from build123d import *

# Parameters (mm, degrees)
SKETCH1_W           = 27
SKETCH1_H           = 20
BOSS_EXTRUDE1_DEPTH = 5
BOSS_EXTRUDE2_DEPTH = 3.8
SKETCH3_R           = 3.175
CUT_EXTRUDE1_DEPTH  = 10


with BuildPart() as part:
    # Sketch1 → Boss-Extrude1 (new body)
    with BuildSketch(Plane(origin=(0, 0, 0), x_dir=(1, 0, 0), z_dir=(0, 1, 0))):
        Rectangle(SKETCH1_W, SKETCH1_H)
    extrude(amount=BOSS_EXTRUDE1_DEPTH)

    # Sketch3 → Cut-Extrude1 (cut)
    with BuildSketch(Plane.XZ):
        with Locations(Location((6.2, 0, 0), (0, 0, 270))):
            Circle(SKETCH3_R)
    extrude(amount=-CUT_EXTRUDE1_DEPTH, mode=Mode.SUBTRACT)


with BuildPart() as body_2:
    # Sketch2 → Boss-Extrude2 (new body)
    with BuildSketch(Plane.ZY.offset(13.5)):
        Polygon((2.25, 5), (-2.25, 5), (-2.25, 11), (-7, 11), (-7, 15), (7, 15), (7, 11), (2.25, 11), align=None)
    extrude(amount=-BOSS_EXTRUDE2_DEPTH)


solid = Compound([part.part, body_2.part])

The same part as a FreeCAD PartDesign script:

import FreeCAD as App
import Part
import Sketcher
from FreeCAD import Vector


def add_polygon(sketch, points):
    """Adds a closed chain of lines whose ends are joined by coincident constraints."""
    first, n = sketch.GeometryCount, len(points)
    for a, b in zip(points, points[1:] + points[:1]):
        sketch.addGeometry(Part.LineSegment(App.Vector(*a, 0), App.Vector(*b, 0)), False)
    for i in range(n):
        sketch.addConstraint(Sketcher.Constraint("Coincident", first + i, 2, first + (i + 1) % n, 1))

doc = App.newDocument("Part")
params = doc.addObject("Spreadsheet::Sheet", "Params")
for row, (alias, value) in enumerate([
    ("sketch1_width", "27 mm"),
    ("sketch1_height", "20 mm"),
    ("pad1_length", "5 mm"),
    ("sketch2_diameter", "6.35 mm"),
    ("pocket1_length", "10 mm"),
    ("sketch3_width", "6 mm"),
    ("sketch3_width2", "4 mm"),
    ("sketch3_height", "14 mm"),
    ("sketch3_height2", "4.5 mm"),
    ("pad2_length", "3.8 mm"),
], start=1):
    params.set(f"A{row}", alias)
    params.set(f"B{row}", "=" + value)
    params.setAlias(f"B{row}", alias)

body = doc.addObject("PartDesign::Body", "Body")

# Sketch on XZ plane
sketch1 = body.newObject("Sketcher::SketchObject", "Sketch")
sketch1.AttachmentSupport = (doc.getObject("XZ_Plane"), [""])
sketch1.MapMode = "FlatFace"
add_polygon(sketch1, [(-14, -10), (-14, 10), (14, 10), (14, -10)])  # lines 0-3
sketch1.addConstraint([
    Sketcher.Constraint("Vertical", 0),
    Sketcher.Constraint("Horizontal", 1),
    Sketcher.Constraint("Vertical", 2),
    Sketcher.Constraint("Horizontal", 3),
    Sketcher.Constraint("Symmetric", 0, 2, 2, 2, -1, 1),
    Sketcher.Constraint("DistanceX", 1, 1, 1, 2, 27.0),
    Sketcher.Constraint("DistanceY", 0, 1, 0, 2, 20.0),
])
sketch1.setExpression("Constraints[9]", "Params.sketch1_width")
sketch1.setExpression("Constraints[10]", "Params.sketch1_height")
pad1 = body.newObject("PartDesign::Pad", "Pad")
pad1.Profile = sketch1
pad1.setExpression("Length", "Params.pad1_length")
pad1.Reversed = True

# Sketch on XZ plane
sketch2 = body.newObject("Sketcher::SketchObject", "Sketch001")
sketch2.AttachmentSupport = (doc.getObject("XZ_Plane"), [""])
sketch2.MapMode = "FlatFace"
sketch2.addGeometry(Part.Circle(Vector(6.2, 0, 0), Vector(0, 0, 1), 3.2), False)
sketch2.addConstraint([
    Sketcher.Constraint("PointOnObject", 0, 3, -1),
    Sketcher.Constraint("Diameter", 0, 6.35),
    Sketcher.Constraint("DistanceX", -1, 1, 0, 3, 6.2),
])
sketch2.setExpression("Constraints[1]", "Params.sketch2_diameter")
pocket1 = body.newObject("PartDesign::Pocket", "Pocket")
pocket1.Profile = sketch2
pocket1.setExpression("Length", "Params.pocket1_length")
body2 = doc.addObject("PartDesign::Body", "Body001")

# Sketch on YZ plane
sketch3 = body2.newObject("Sketcher::SketchObject", "Sketch002")
sketch3.AttachmentSupport = (doc.getObject("YZ_Plane001"), [""])
sketch3.MapMode = "FlatFace"
sketch3.AttachmentOffset = App.Placement(Vector(0, 0, -13.5), App.Rotation())
add_polygon(sketch3, [(5, -2.2), (5, 2.2), (11, 2.2), (11, 7), (15, 7), (15, -7), (11, -7), (11, -2.2)])  # lines 0-7
sketch3.addConstraint([
    Sketcher.Constraint("Vertical", 0),
    Sketcher.Constraint("Horizontal", 1),
    Sketcher.Constraint("Vertical", 2),
    Sketcher.Constraint("Horizontal", 3),
    Sketcher.Constraint("Vertical", 4),
    Sketcher.Constraint("Horizontal", 5),
    Sketcher.Constraint("Vertical", 6),
    Sketcher.Constraint("Horizontal", 7),
    Sketcher.Constraint("Symmetric", 2, 2, 5, 2, -1),
    Sketcher.Constraint("Equal", 2, 6),
    Sketcher.Constraint("DistanceX", 1, 1, 1, 2, 6.0),
    Sketcher.Constraint("DistanceX", 3, 1, 3, 2, 4.0),
    Sketcher.Constraint("DistanceY", 4, 2, 4, 1, 14.0),
    Sketcher.Constraint("DistanceY", 0, 1, 0, 2, 4.5),
    Sketcher.Constraint("DistanceX", -1, 1, 0, 2, 5.0),
])
sketch3.setExpression("Constraints[18]", "Params.sketch3_width")
sketch3.setExpression("Constraints[19]", "Params.sketch3_width2")
sketch3.setExpression("Constraints[20]", "Params.sketch3_height")
sketch3.setExpression("Constraints[21]", "Params.sketch3_height2")
pad2 = body2.newObject("PartDesign::Pad", "Pad001")
pad2.Profile = sketch3
pad2.setExpression("Length", "Params.pad2_length")

doc.recompute()
